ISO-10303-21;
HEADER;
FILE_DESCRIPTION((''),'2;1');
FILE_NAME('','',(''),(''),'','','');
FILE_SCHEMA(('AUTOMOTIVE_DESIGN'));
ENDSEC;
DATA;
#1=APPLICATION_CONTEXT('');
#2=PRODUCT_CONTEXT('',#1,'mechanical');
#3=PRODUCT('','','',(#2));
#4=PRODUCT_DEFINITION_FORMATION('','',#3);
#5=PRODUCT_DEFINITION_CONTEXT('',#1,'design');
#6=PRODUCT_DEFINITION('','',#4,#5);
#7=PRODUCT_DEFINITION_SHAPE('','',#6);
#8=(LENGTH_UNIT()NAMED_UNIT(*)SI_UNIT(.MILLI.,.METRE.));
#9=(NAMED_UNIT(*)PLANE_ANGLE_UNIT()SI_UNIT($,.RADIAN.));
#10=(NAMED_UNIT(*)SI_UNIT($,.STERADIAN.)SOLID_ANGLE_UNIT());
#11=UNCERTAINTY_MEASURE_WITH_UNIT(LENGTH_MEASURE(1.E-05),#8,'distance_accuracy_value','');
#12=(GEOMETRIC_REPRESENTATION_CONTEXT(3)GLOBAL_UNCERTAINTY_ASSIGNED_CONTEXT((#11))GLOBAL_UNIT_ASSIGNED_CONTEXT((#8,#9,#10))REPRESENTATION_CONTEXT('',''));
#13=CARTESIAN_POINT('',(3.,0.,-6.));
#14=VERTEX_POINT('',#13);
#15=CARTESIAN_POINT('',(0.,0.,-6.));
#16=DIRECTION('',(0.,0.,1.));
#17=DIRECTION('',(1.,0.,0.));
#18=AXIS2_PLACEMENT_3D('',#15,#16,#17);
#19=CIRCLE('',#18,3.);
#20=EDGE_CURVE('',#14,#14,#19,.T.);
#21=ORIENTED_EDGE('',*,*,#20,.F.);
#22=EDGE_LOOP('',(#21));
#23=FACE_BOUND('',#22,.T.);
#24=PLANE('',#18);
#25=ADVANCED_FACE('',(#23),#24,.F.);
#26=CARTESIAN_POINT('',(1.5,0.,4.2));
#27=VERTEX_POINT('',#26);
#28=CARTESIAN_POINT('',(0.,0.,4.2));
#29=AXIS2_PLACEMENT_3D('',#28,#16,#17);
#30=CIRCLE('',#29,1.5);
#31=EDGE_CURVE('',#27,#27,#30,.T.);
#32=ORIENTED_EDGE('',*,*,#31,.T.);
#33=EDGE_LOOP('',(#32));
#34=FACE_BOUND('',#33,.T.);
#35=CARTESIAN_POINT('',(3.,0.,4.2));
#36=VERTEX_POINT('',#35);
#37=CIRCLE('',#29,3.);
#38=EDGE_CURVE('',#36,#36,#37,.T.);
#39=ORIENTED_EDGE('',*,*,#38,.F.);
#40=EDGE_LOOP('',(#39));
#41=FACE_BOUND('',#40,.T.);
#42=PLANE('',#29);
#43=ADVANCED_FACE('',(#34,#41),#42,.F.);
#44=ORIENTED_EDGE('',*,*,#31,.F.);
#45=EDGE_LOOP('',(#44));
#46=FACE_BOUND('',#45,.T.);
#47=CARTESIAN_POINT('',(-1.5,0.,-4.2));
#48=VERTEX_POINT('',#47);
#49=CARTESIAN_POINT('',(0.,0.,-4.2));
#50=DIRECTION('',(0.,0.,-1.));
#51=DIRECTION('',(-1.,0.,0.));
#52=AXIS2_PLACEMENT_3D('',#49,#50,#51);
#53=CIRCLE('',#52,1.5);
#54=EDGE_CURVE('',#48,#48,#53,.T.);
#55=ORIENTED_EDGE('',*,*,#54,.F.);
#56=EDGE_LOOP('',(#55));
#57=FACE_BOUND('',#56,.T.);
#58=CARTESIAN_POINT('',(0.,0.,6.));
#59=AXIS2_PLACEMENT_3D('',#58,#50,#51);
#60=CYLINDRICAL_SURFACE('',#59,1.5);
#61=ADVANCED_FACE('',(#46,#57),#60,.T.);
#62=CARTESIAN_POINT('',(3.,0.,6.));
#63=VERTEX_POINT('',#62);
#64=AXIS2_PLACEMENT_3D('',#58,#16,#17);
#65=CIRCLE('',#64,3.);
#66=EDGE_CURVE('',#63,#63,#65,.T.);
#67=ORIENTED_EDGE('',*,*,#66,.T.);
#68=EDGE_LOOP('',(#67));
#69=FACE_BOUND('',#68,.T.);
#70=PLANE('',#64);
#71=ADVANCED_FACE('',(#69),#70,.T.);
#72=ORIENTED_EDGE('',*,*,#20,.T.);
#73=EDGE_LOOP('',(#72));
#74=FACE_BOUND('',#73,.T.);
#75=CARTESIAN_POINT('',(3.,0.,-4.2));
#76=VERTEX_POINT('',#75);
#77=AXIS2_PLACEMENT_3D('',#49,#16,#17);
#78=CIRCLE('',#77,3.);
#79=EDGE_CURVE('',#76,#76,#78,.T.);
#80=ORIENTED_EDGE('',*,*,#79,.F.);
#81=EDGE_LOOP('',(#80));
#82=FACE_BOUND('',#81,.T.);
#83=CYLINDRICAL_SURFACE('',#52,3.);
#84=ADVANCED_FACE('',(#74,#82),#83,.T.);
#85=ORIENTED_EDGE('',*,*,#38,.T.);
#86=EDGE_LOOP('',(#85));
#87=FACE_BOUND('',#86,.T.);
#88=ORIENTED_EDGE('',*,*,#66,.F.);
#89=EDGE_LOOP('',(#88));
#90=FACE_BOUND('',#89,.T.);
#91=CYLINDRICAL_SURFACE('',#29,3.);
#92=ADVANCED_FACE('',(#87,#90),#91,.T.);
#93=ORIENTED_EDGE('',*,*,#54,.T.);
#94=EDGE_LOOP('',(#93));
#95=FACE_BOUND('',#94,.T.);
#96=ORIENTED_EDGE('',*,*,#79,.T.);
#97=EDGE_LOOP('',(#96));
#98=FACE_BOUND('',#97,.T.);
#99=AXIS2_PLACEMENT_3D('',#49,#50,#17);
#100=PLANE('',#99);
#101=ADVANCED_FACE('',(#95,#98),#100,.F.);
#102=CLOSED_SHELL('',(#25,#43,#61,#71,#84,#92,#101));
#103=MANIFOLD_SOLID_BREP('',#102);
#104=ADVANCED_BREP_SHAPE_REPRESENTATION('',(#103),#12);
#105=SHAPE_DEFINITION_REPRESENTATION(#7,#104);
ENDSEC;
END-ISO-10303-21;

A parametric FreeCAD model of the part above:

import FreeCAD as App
import Part
import Sketcher

V = App.Vector
Q = App.Units.Quantity

doc = App.newDocument("Part")
body = doc.addObject("PartDesign::Body", "Body")

# Sketch on XY plane
sketch1 = body.newObject("Sketcher::SketchObject", "Sketch")
sketch1.AttachmentSupport = (doc.getObject("XY_Plane"), [""])
sketch1.MapMode = "FlatFace"
sketch1.addGeometry(Part.Circle(V(0, 0, 0), V(0, 0, 1), 1.5), False)
sketch1.addConstraint([
    Sketcher.Constraint("Coincident", 0, 3, -1, 1),
    Sketcher.Constraint("Diameter", 0, Q("3 mm")),
])
pad1 = body.newObject("PartDesign::Pad", "Pad")
pad1.Profile = sketch1
pad1.Length = 12
pad1.Midplane = True

# Sketch on XY plane
sketch2 = body.newObject("Sketcher::SketchObject", "Sketch001")
sketch2.AttachmentSupport = (doc.getObject("XY_Plane"), [""])
sketch2.MapMode = "FlatFace"
sketch2.AttachmentOffset = App.Placement(V(0, 0, 6), App.Rotation())
sketch2.addGeometry(Part.Circle(V(0, 0, 0), V(0, 0, 1), 3), False)
sketch2.addConstraint([
    Sketcher.Constraint("Coincident", 0, 3, -1, 1),
    Sketcher.Constraint("Diameter", 0, Q("6 mm")),
])
pad2 = body.newObject("PartDesign::Pad", "Pad001")
pad2.Profile = sketch2
pad2.Length = 1.8
pad2.Reversed = True
doc.recompute()

mirrored = body.newObject("PartDesign::Mirrored", "Mirrored")
mirrored.Originals = [pad2]
mirrored.MirrorPlane = (doc.getObject("XY_Plane"), [""])
body.Tip = mirrored

doc.recompute()
